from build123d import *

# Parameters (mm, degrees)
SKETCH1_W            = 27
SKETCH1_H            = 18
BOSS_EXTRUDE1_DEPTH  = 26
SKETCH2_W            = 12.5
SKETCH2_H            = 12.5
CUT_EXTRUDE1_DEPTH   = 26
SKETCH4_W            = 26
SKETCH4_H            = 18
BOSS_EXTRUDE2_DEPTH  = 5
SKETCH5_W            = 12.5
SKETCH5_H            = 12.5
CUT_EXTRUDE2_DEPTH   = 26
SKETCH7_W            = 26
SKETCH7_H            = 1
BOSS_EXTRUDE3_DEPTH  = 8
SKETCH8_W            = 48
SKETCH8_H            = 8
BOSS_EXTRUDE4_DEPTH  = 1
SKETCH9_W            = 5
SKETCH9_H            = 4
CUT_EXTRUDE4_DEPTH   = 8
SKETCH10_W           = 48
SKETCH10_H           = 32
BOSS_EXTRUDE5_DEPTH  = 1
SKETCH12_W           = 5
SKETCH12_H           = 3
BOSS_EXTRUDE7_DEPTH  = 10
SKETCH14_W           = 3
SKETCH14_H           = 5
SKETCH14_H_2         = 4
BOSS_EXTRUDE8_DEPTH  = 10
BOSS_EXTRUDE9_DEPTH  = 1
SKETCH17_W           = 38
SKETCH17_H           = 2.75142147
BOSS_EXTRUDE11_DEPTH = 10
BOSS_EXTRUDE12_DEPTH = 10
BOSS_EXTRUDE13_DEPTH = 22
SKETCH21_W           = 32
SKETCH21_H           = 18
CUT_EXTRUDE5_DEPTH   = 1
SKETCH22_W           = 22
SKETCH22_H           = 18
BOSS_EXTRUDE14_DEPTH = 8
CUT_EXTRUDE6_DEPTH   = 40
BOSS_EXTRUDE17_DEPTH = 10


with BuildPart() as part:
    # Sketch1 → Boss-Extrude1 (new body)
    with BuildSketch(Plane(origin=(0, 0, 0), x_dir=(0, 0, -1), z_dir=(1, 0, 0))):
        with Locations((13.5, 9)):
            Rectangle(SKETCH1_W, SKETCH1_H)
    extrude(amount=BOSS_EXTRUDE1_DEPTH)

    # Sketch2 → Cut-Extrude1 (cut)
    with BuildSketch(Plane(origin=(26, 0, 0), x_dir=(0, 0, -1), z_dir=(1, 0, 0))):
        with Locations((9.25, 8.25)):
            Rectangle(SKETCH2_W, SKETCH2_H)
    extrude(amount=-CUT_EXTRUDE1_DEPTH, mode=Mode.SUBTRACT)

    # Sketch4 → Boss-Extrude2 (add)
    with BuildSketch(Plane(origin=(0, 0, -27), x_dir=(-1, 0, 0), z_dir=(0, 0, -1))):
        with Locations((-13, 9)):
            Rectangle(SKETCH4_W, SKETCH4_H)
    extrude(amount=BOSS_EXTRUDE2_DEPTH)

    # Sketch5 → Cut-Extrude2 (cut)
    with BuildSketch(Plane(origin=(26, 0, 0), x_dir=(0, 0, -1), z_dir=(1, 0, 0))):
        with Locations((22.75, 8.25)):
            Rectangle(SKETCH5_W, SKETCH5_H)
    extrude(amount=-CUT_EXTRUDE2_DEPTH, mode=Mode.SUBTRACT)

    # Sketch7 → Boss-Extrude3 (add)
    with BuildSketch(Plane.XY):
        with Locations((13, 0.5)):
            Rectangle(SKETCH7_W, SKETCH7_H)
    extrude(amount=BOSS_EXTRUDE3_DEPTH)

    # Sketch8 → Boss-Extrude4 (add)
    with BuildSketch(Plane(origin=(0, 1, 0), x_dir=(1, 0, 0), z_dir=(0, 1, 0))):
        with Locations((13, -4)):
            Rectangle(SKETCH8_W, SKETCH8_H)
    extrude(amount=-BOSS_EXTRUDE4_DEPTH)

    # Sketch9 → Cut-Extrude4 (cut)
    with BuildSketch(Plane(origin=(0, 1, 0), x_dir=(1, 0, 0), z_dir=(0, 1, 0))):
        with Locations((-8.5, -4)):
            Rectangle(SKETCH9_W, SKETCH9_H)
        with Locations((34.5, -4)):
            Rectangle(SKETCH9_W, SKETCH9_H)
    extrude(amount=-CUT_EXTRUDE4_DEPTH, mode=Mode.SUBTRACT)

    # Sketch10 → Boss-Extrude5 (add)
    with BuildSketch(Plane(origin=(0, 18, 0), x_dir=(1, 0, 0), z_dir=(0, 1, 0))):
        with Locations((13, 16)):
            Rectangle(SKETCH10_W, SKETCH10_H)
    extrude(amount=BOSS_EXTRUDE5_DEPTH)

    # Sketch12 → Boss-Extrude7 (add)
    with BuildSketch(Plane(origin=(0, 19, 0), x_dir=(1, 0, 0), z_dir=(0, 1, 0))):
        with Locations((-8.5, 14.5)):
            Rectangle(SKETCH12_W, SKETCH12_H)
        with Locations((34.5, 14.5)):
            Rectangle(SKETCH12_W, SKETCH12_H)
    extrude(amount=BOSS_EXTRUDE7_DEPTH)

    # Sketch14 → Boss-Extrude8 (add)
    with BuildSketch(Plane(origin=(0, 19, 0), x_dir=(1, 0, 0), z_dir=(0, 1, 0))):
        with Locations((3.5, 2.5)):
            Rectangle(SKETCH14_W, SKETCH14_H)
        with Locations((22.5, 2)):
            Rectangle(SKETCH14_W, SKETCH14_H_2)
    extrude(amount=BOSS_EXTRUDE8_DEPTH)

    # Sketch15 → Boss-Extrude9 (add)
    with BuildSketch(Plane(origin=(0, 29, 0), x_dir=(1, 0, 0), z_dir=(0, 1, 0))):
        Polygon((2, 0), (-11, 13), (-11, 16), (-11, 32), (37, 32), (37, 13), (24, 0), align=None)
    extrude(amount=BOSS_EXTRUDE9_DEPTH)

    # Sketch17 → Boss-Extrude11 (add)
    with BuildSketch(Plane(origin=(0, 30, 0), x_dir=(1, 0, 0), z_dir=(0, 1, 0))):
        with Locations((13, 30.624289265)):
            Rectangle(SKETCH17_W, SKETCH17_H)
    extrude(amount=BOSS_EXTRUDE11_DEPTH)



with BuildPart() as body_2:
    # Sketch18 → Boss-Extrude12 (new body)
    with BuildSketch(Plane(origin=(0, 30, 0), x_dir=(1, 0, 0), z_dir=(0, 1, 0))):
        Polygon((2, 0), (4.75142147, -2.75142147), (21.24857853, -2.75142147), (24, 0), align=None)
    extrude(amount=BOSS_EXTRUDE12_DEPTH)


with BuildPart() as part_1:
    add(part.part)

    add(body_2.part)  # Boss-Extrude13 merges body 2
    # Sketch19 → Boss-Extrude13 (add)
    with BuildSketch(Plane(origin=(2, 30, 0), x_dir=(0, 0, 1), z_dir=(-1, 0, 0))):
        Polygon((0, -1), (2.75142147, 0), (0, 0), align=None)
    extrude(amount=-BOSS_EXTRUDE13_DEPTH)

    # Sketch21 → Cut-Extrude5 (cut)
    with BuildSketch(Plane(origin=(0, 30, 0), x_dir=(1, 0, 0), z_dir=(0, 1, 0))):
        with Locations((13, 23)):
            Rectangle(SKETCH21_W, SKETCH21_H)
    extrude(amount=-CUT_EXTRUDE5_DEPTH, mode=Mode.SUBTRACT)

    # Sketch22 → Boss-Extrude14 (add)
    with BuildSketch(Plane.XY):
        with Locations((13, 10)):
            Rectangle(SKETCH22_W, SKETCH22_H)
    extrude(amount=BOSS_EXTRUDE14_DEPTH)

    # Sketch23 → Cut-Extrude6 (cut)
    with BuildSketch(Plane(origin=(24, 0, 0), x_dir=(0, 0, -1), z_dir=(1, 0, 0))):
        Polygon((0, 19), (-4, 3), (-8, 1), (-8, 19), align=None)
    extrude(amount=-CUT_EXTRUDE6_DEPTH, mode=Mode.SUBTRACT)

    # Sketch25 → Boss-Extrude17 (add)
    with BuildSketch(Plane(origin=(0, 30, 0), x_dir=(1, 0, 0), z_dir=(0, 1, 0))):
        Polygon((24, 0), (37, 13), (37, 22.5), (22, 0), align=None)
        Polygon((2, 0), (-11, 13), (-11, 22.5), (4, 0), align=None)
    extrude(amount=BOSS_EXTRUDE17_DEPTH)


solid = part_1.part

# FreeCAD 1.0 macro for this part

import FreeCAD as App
import Part
import Sketcher


def add_polygon(sketch, points):
    """Adds a closed chain of lines whose ends are joined by coincident constraints."""
    first, n = sketch.GeometryCount, len(points)
    for a, b in zip(points, points[1:] + points[:1]):
        sketch.addGeometry(Part.LineSegment(App.Vector(*a, 0), App.Vector(*b, 0)), False)
    for i in range(n):
        sketch.addConstraint(Sketcher.Constraint("Coincident", first + i, 2, first + (i + 1) % n, 1))

doc = App.newDocument("Part")
body = doc.addObject("PartDesign::Body", "Body")

sketch1 = body.newObject("Sketcher::SketchObject", "Sketch")
sketch1.AttachmentSupport = (doc.getObject("YZ_Plane"), [""])
sketch1.MapMode = "FlatFace"
add_polygon(sketch1, [(18, 0), (0, 0), (0, -27), (18, -27)])
sketch1.addConstraint([
    Sketcher.Constraint("Horizontal", 0),
    Sketcher.Constraint("Vertical", 1),
    Sketcher.Constraint("Horizontal", 2),
    Sketcher.Constraint("Vertical", 3),
    Sketcher.Constraint("Coincident", 0, 2, -1, 1),
    Sketcher.Constraint("DistanceX", 0, 2, 0, 1, 18.0),
    Sketcher.Constraint("DistanceY", 1, 2, 1, 1, 27.0),
])
pad1 = body.newObject("PartDesign::Pad", "Pad")
pad1.Profile = sketch1
pad1.Length = 26

sketch2 = body.newObject("Sketcher::SketchObject", "Sketch001")
sketch2.AttachmentSupport = (doc.getObject("YZ_Plane"), [""])
sketch2.MapMode = "FlatFace"
sketch2.AttachmentOffset = App.Placement(App.Vector(0, 0, 26), App.Rotation())
add_polygon(sketch2, [(14, -3), (2, -3), (2, -16), (14, -16)])
sketch2.addConstraint([
    Sketcher.Constraint("Horizontal", 0),
    Sketcher.Constraint("Vertical", 1),
    Sketcher.Constraint("Horizontal", 2),
    Sketcher.Constraint("Vertical", 3),
    Sketcher.Constraint("Equal", 2, 1),
    Sketcher.Constraint("DistanceX", 0, 2, 0, 1, 12.5),
    Sketcher.Constraint("DistanceX", -1, 1, 0, 2, 2.0),
    Sketcher.Constraint("DistanceY", 0, 2, -1, 1, 3.0),
])
pocket1 = body.newObject("PartDesign::Pocket", "Pocket")
pocket1.Profile = sketch2
pocket1.Length = 26

sketch3 = body.newObject("Sketcher::SketchObject", "Sketch002")
sketch3.AttachmentSupport = (doc.getObject("XY_Plane"), [""])
sketch3.MapMode = "FlatFace"
sketch3.AttachmentOffset = App.Placement(App.Vector(0, 0, -27), App.Rotation())
add_polygon(sketch3, [(26, 18), (26, 0), (0, 0), (0, 18)])
sketch3.addConstraint([
    Sketcher.Constraint("Vertical", 0),
    Sketcher.Constraint("Horizontal", 1),
    Sketcher.Constraint("Vertical", 2),
    Sketcher.Constraint("Horizontal", 3),
    Sketcher.Constraint("Coincident", 1, 2, -1, 1),
    Sketcher.Constraint("DistanceX", 1, 2, 1, 1, 26.0),
    Sketcher.Constraint("DistanceY", 0, 2, 0, 1, 18.0),
])
pad2 = body.newObject("PartDesign::Pad", "Pad001")
pad2.Profile = sketch3
pad2.Length = 5
pad2.Reversed = True

sketch4 = body.newObject("Sketcher::SketchObject", "Sketch003")
sketch4.AttachmentSupport = (doc.getObject("YZ_Plane"), [""])
sketch4.MapMode = "FlatFace"
sketch4.AttachmentOffset = App.Placement(App.Vector(0, 0, 26), App.Rotation())
add_polygon(sketch4, [(14, -16), (2, -16), (2, -29), (14, -29)])
sketch4.addConstraint([
    Sketcher.Constraint("Horizontal", 0),
    Sketcher.Constraint("Vertical", 1),
    Sketcher.Constraint("Horizontal", 2),
    Sketcher.Constraint("Vertical", 3),
    Sketcher.Constraint("Equal", 2, 1),
    Sketcher.Constraint("DistanceX", 0, 2, 0, 1, 12.5),
    Sketcher.Constraint("DistanceX", -1, 1, 0, 2, 2.0),
    Sketcher.Constraint("DistanceY", 1, 2, -1, 1, 29.0),
])
pocket2 = body.newObject("PartDesign::Pocket", "Pocket001")
pocket2.Profile = sketch4
pocket2.Length = 26

sketch5 = body.newObject("Sketcher::SketchObject", "Sketch004")
sketch5.AttachmentSupport = (doc.getObject("XY_Plane"), [""])
sketch5.MapMode = "FlatFace"
add_polygon(sketch5, [(0, 1), (0, 0), (26, 0), (26, 1)])
sketch5.addConstraint([
    Sketcher.Constraint("Vertical", 0),
    Sketcher.Constraint("Horizontal", 1),
    Sketcher.Constraint("Vertical", 2),
    Sketcher.Constraint("Horizontal", 3),
    Sketcher.Constraint("Coincident", 0, 2, -1, 1),
    Sketcher.Constraint("DistanceX", 1, 1, 1, 2, 26.0),
    Sketcher.Constraint("DistanceY", 0, 2, 0, 1, 1.0),
])
pad3 = body.newObject("PartDesign::Pad", "Pad002")
pad3.Profile = sketch5
pad3.Length = 8

sketch6 = body.newObject("Sketcher::SketchObject", "Sketch005")
sketch6.AttachmentSupport = (doc.getObject("XZ_Plane"), [""])
sketch6.MapMode = "FlatFace"
sketch6.AttachmentOffset = App.Placement(App.Vector(0, 0, -1), App.Rotation())
add_polygon(sketch6, [(-11, 0), (-11, 8), (37, 8), (37, 0)])
sketch6.addConstraint([
    Sketcher.Constraint("Vertical", 0),
    Sketcher.Constraint("Horizontal", 1),
    Sketcher.Constraint("Vertical", 2),
    Sketcher.Constraint("Horizontal", 3),
    Sketcher.Constraint("PointOnObject", 2, 2, -1),
    Sketcher.Constraint("DistanceX", 1, 1, 1, 2, 48.0),
    Sketcher.Constraint("DistanceY", 0, 1, 0, 2, 8.0),
    Sketcher.Constraint("DistanceX", 0, 2, -1, 1, 11.0),
])
pad4 = body.newObject("PartDesign::Pad", "Pad003")
pad4.Profile = sketch6
pad4.Length = 1

sketch7 = body.newObject("Sketcher::SketchObject", "Sketch006")
sketch7.AttachmentSupport = (doc.getObject("XZ_Plane"), [""])
sketch7.MapMode = "FlatFace"
sketch7.AttachmentOffset = App.Placement(App.Vector(0, 0, -1), App.Rotation())
add_polygon(sketch7, [(-11, 2), (-11, 6), (-6, 6), (-6, 2)])
add_polygon(sketch7, [(32, 2), (32, 6), (37, 6), (37, 2)])
sketch7.addConstraint([
    Sketcher.Constraint("Vertical", 0),
    Sketcher.Constraint("Horizontal", 1),
    Sketcher.Constraint("Vertical", 2),
    Sketcher.Constraint("Horizontal", 3),
    Sketcher.Constraint("Vertical", 4),
    Sketcher.Constraint("Horizontal", 5),
    Sketcher.Constraint("Vertical", 6),
    Sketcher.Constraint("Horizontal", 7),
    Sketcher.Constraint("Horizontal", 1, 2, 4, 2),
    Sketcher.Constraint("Horizontal", 3, 2, 6, 2),
    Sketcher.Constraint("Equal", 3, 5),
    Sketcher.Constraint("DistanceX", 1, 1, 1, 2, 5.0),
    Sketcher.Constraint("DistanceY", 0, 1, 0, 2, 4.0),
    Sketcher.Constraint("DistanceX", 0, 2, -1, 1, 11.0),
    Sketcher.Constraint("DistanceY", -1, 1, 0, 2, 6.0),
    Sketcher.Constraint("DistanceX", -1, 1, 4, 2, 32.0),
])
pocket3 = body.newObject("PartDesign::Pocket", "Pocket002")
pocket3.Profile = sketch7
pocket3.Length = 8
pocket3.Reversed = True

sketch8 = body.newObject("Sketcher::SketchObject", "Sketch007")
sketch8.AttachmentSupport = (doc.getObject("XZ_Plane"), [""])
sketch8.MapMode = "FlatFace"
sketch8.AttachmentOffset = App.Placement(App.Vector(0, 0, -18), App.Rotation())
add_polygon(sketch8, [(-11, -32), (-11, 0), (37, 0), (37, -32)])
sketch8.addConstraint([
    Sketcher.Constraint("Vertical", 0),
    Sketcher.Constraint("Horizontal", 1),
    Sketcher.Constraint("Vertical", 2),
    Sketcher.Constraint("Horizontal", 3),
    Sketcher.Constraint("PointOnObject", 0, 2, -1),
    Sketcher.Constraint("DistanceX", 1, 1, 1, 2, 48.0),
    Sketcher.Constraint("DistanceY", 0, 1, 0, 2, 32.0),
    Sketcher.Constraint("DistanceX", 0, 2, -1, 1, 11.0),
])
pad5 = body.newObject("PartDesign::Pad", "Pad004")
pad5.Profile = sketch8
pad5.Length = 1
pad5.Reversed = True

sketch9 = body.newObject("Sketcher::SketchObject", "Sketch008")
sketch9.AttachmentSupport = (doc.getObject("XZ_Plane"), [""])
sketch9.MapMode = "FlatFace"
sketch9.AttachmentOffset = App.Placement(App.Vector(0, 0, -19), App.Rotation())
add_polygon(sketch9, [(-11, -16), (-11, -13), (-6, -13), (-6, -16)])
add_polygon(sketch9, [(32, -16), (32, -13), (37, -13), (37, -16)])
sketch9.addConstraint([
    Sketcher.Constraint("Vertical", 0),
    Sketcher.Constraint("Horizontal", 1),
    Sketcher.Constraint("Vertical", 2),
    Sketcher.Constraint("Horizontal", 3),
    Sketcher.Constraint("Vertical", 4),
    Sketcher.Constraint("Horizontal", 5),
    Sketcher.Constraint("Vertical", 6),
    Sketcher.Constraint("Horizontal", 7),
    Sketcher.Constraint("Horizontal", 1, 2, 4, 2),
    Sketcher.Constraint("Horizontal", 3, 2, 6, 2),
    Sketcher.Constraint("Equal", 3, 5),
    Sketcher.Constraint("DistanceX", 1, 1, 1, 2, 5.0),
    Sketcher.Constraint("DistanceY", 0, 1, 0, 2, 3.0),
    Sketcher.Constraint("DistanceX", 0, 2, -1, 1, 11.0),
    Sketcher.Constraint("DistanceY", 0, 2, -1, 1, 13.0),
    Sketcher.Constraint("DistanceX", -1, 1, 4, 2, 32.0),
])
pad6 = body.newObject("PartDesign::Pad", "Pad005")
pad6.Profile = sketch9
pad6.Length = 10
pad6.Reversed = True

sketch10 = body.newObject("Sketcher::SketchObject", "Sketch009")
sketch10.AttachmentSupport = (doc.getObject("XZ_Plane"), [""])
sketch10.MapMode = "FlatFace"
sketch10.AttachmentOffset = App.Placement(App.Vector(0, 0, -19), App.Rotation())
add_polygon(sketch10, [(2, -5), (2, 0), (5, 0), (5, -5)])
add_polygon(sketch10, [(21, -4), (21, 0), (24, 0), (24, -4)])
sketch10.addConstraint([
    Sketcher.Constraint("Vertical", 0),
    Sketcher.Constraint("Horizontal", 1),
    Sketcher.Constraint("Vertical", 2),
    Sketcher.Constraint("Horizontal", 3),
    Sketcher.Constraint("Vertical", 4),
    Sketcher.Constraint("Horizontal", 5),
    Sketcher.Constraint("Vertical", 6),
    Sketcher.Constraint("Horizontal", 7),
    Sketcher.Constraint("PointOnObject", 0, 2, -1),
    Sketcher.Constraint("PointOnObject", 4, 2, -1),
    Sketcher.Constraint("Equal", 3, 5),
    Sketcher.Constraint("DistanceX", 1, 1, 1, 2, 3.0),
    Sketcher.Constraint("DistanceY", 0, 1, 0, 2, 5.0),
    Sketcher.Constraint("DistanceY", 4, 1, 4, 2, 4.0),
    Sketcher.Constraint("DistanceX", -1, 1, 0, 2, 2.0),
    Sketcher.Constraint("DistanceX", -1, 1, 4, 2, 21.0),
])
pad7 = body.newObject("PartDesign::Pad", "Pad006")
pad7.Profile = sketch10
pad7.Length = 10
pad7.Reversed = True

sketch11 = body.newObject("Sketcher::SketchObject", "Sketch010")
sketch11.AttachmentSupport = (doc.getObject("XZ_Plane"), [""])
sketch11.MapMode = "FlatFace"
sketch11.AttachmentOffset = App.Placement(App.Vector(0, 0, -29), App.Rotation())
add_polygon(sketch11, [(-11, -13), (2, 0), (24, 0), (37, -13), (37, -32), (-11, -32)])
sketch11.addConstraint([
    Sketcher.Constraint("Horizontal", 1),
    Sketcher.Constraint("Vertical", 3),
    Sketcher.Constraint("Horizontal", 4),
    Sketcher.Constraint("Vertical", 5),
    Sketcher.Constraint("PointOnObject", 0, 2, -1),
    Sketcher.Constraint("Perpendicular", 0, 2),
    Sketcher.Constraint("Horizontal", 2, 2, 5, 2),
    Sketcher.Constraint("Equal", 0, 2),
    Sketcher.Constraint("DistanceX", 1, 1, 1, 2, 22.0),
    Sketcher.Constraint("DistanceX", 4, 2, 4, 1, 48.0),
    Sketcher.Constraint("DistanceY", 3, 2, 3, 1, 19.0),
    Sketcher.Constraint("DistanceX", -1, 1, 0, 2, 2.0),
])
pad8 = body.newObject("PartDesign::Pad", "Pad007")
pad8.Profile = sketch11
pad8.Length = 1
pad8.Reversed = True

sketch12 = body.newObject("Sketcher::SketchObject", "Sketch011")
sketch12.AttachmentSupport = (doc.getObject("XZ_Plane"), [""])
sketch12.MapMode = "FlatFace"
sketch12.AttachmentOffset = App.Placement(App.Vector(0, 0, -30), App.Rotation())
add_polygon(sketch12, [(-6, -32), (-6, -29.2), (32, -29.2), (32, -32)])
sketch12.addConstraint([
    Sketcher.Constraint("Vertical", 0),
    Sketcher.Constraint("Horizontal", 1),
    Sketcher.Constraint("Vertical", 2),
    Sketcher.Constraint("Horizontal", 3),
    Sketcher.Constraint("DistanceX", 1, 1, 1, 2, 38.0),
    Sketcher.Constraint("DistanceX", 0, 2, -1, 1, 6.0),
    Sketcher.Constraint("DistanceY", 2, 2, -1, 1, 32.0),
    Sketcher.Constraint("DistanceY", 0, 1, 0, 2, 2.751421),
])
pad9 = body.newObject("PartDesign::Pad", "Pad008")
pad9.Profile = sketch12
pad9.Length = 10
pad9.Reversed = True
body2 = doc.addObject("PartDesign::Body", "Body001")

sketch13 = body2.newObject("Sketcher::SketchObject", "Sketch012")
sketch13.AttachmentSupport = (doc.getObject("XZ_Plane001"), [""])
sketch13.MapMode = "FlatFace"
sketch13.AttachmentOffset = App.Placement(App.Vector(0, 0, -30), App.Rotation())
add_polygon(sketch13, [(2, 0), (4.8, 2.8), (21.2, 2.8), (24, 0)])
sketch13.addConstraint([
    Sketcher.Constraint("Horizontal", 1),
    Sketcher.Constraint("Horizontal", 3),
    Sketcher.Constraint("PointOnObject", 2, 2, -1),
    Sketcher.Constraint("Perpendicular", 0, 2),
    Sketcher.Constraint("Equal", 0, 2),
    Sketcher.Constraint("DistanceX", 3, 2, 3, 1, 22.0),
    Sketcher.Constraint("DistanceX", -1, 1, 2, 2, 24.0),
    Sketcher.Constraint("DistanceX", 1, 1, 1, 2, 16.497157),
])
pad10 = body2.newObject("PartDesign::Pad", "Pad009")
pad10.Profile = sketch13
pad10.Length = 10
pad10.Reversed = True
body.AllowCompound = True
doc.recompute()

boolean = body.newObject("PartDesign::Boolean", "Boolean")
boolean.Type = "Fuse"
boolean.addObjects([body2])

sketch14 = body.newObject("Sketcher::SketchObject", "Sketch013")
sketch14.AttachmentSupport = (doc.getObject("YZ_Plane"), [""])
sketch14.MapMode = "FlatFace"
sketch14.AttachmentOffset = App.Placement(App.Vector(0, 0, 2), App.Rotation())
add_polygon(sketch14, [(29, 0), (30, 2.8), (30, 0)])
sketch14.addConstraint([
    Sketcher.Constraint("Vertical", 1),
    Sketcher.Constraint("Horizontal", 2),
    Sketcher.Constraint("PointOnObject", 1, 2, -1),
    Sketcher.Constraint("DistanceX", 2, 2, 2, 1, 1.0),
    Sketcher.Constraint("DistanceX", -1, 1, 0, 2, 30.0),
    Sketcher.Constraint("DistanceY", 1, 2, 1, 1, 2.751421),
])
pad11 = body.newObject("PartDesign::Pad", "Pad010")
pad11.Profile = sketch14
pad11.Length = 22

sketch15 = body.newObject("Sketcher::SketchObject", "Sketch014")
sketch15.AttachmentSupport = (doc.getObject("XZ_Plane"), [""])
sketch15.MapMode = "FlatFace"
sketch15.AttachmentOffset = App.Placement(App.Vector(0, 0, -30), App.Rotation())
add_polygon(sketch15, [(-3, -32), (-3, -14), (29, -14), (29, -32)])
sketch15.addConstraint([
    Sketcher.Constraint("Vertical", 0),
    Sketcher.Constraint("Horizontal", 1),
    Sketcher.Constraint("Vertical", 2),
    Sketcher.Constraint("Horizontal", 3),
    Sketcher.Constraint("DistanceX", 1, 1, 1, 2, 32.0),
    Sketcher.Constraint("DistanceY", 0, 1, 0, 2, 18.0),
    Sketcher.Constraint("DistanceX", 0, 2, -1, 1, 3.0),
    Sketcher.Constraint("DistanceY", 0, 2, -1, 1, 14.0),
])
pocket4 = body.newObject("PartDesign::Pocket", "Pocket003")
pocket4.Profile = sketch15
pocket4.Length = 1
pocket4.Reversed = True

sketch16 = body.newObject("Sketcher::SketchObject", "Sketch015")
sketch16.AttachmentSupport = (doc.getObject("XY_Plane"), [""])
sketch16.MapMode = "FlatFace"
add_polygon(sketch16, [(2, 19), (2, 1), (24, 1), (24, 19)])
sketch16.addConstraint([
    Sketcher.Constraint("Vertical", 0),
    Sketcher.Constraint("Horizontal", 1),
    Sketcher.Constraint("Vertical", 2),
    Sketcher.Constraint("Horizontal", 3),
    Sketcher.Constraint("DistanceX", 1, 1, 1, 2, 22.0),
    Sketcher.Constraint("DistanceY", 0, 2, 0, 1, 18.0),
    Sketcher.Constraint("DistanceX", -1, 1, 0, 2, 2.0),
    Sketcher.Constraint("DistanceY", -1, 1, 0, 2, 1.0),
])
pad12 = body.newObject("PartDesign::Pad", "Pad011")
pad12.Profile = sketch16
pad12.Length = 8

sketch17 = body.newObject("Sketcher::SketchObject", "Sketch016")
sketch17.AttachmentSupport = (doc.getObject("YZ_Plane"), [""])
sketch17.MapMode = "FlatFace"
sketch17.AttachmentOffset = App.Placement(App.Vector(0, 0, 24), App.Rotation())
add_polygon(sketch17, [(3, 4), (19, 0), (19, 8), (1, 8)])
sketch17.addConstraint([
    Sketcher.Constraint("Vertical", 1),
    Sketcher.Constraint("Horizontal", 2),
    Sketcher.Constraint("PointOnObject", 0, 2, -1),
    Sketcher.Constraint("DistanceX", 2, 2, 2, 1, 18.0),
    Sketcher.Constraint("DistanceY", 1, 1, 1, 2, 8.0),
    Sketcher.Constraint("DistanceX", -1, 1, 0, 2, 19.0),
    Sketcher.Constraint("DistanceX", -1, 1, 3, 2, 3.0),
    Sketcher.Constraint("DistanceY", -1, 1, 3, 2, 4.0),
])
pocket5 = body.newObject("PartDesign::Pocket", "Pocket004")
pocket5.Profile = sketch17
pocket5.Length = 40

sketch18 = body.newObject("Sketcher::SketchObject", "Sketch017")
sketch18.AttachmentSupport = (doc.getObject("XZ_Plane"), [""])
sketch18.MapMode = "FlatFace"
sketch18.AttachmentOffset = App.Placement(App.Vector(0, 0, -30), App.Rotation())
add_polygon(sketch18, [(24, 0), (37, -13), (37, -22.5), (22, 0)])
add_polygon(sketch18, [(-11, -13), (2, 0), (4, 0), (-11, -22.5)])
sketch18.addConstraint([
    Sketcher.Constraint("Vertical", 1),
    Sketcher.Constraint("Horizontal", 3),
    Sketcher.Constraint("Horizontal", 5),
    Sketcher.Constraint("Vertical", 7),
    Sketcher.Constraint("PointOnObject", 2, 2, -1),
    Sketcher.Constraint("PointOnObject", 4, 2, -1),
    Sketcher.Constraint("Perpendicular", 0, 4),
    Sketcher.Constraint("Horizontal", 1, 2, 6, 2),
    Sketcher.Constraint("Horizontal", 0, 2, 7, 2),
    Sketcher.Constraint("Equal", 3, 5),
    Sketcher.Constraint("Equal", 0, 4),
    Sketcher.Constraint("DistanceX", 3, 1, 3, 2, 2.0),
    Sketcher.Constraint("DistanceY", 1, 2, 1, 1, 9.5),
    Sketcher.Constraint("DistanceX", -1, 1, 0, 2, 37.0),
    Sketcher.Constraint("DistanceY", 0, 2, -1, 1, 13.0),
    Sketcher.Constraint("DistanceX", -1, 1, 4, 2, 2.0),
])
pad13 = body.newObject("PartDesign::Pad", "Pad012")
pad13.Profile = sketch18
pad13.Length = 10
pad13.Reversed = True

doc.recompute()
